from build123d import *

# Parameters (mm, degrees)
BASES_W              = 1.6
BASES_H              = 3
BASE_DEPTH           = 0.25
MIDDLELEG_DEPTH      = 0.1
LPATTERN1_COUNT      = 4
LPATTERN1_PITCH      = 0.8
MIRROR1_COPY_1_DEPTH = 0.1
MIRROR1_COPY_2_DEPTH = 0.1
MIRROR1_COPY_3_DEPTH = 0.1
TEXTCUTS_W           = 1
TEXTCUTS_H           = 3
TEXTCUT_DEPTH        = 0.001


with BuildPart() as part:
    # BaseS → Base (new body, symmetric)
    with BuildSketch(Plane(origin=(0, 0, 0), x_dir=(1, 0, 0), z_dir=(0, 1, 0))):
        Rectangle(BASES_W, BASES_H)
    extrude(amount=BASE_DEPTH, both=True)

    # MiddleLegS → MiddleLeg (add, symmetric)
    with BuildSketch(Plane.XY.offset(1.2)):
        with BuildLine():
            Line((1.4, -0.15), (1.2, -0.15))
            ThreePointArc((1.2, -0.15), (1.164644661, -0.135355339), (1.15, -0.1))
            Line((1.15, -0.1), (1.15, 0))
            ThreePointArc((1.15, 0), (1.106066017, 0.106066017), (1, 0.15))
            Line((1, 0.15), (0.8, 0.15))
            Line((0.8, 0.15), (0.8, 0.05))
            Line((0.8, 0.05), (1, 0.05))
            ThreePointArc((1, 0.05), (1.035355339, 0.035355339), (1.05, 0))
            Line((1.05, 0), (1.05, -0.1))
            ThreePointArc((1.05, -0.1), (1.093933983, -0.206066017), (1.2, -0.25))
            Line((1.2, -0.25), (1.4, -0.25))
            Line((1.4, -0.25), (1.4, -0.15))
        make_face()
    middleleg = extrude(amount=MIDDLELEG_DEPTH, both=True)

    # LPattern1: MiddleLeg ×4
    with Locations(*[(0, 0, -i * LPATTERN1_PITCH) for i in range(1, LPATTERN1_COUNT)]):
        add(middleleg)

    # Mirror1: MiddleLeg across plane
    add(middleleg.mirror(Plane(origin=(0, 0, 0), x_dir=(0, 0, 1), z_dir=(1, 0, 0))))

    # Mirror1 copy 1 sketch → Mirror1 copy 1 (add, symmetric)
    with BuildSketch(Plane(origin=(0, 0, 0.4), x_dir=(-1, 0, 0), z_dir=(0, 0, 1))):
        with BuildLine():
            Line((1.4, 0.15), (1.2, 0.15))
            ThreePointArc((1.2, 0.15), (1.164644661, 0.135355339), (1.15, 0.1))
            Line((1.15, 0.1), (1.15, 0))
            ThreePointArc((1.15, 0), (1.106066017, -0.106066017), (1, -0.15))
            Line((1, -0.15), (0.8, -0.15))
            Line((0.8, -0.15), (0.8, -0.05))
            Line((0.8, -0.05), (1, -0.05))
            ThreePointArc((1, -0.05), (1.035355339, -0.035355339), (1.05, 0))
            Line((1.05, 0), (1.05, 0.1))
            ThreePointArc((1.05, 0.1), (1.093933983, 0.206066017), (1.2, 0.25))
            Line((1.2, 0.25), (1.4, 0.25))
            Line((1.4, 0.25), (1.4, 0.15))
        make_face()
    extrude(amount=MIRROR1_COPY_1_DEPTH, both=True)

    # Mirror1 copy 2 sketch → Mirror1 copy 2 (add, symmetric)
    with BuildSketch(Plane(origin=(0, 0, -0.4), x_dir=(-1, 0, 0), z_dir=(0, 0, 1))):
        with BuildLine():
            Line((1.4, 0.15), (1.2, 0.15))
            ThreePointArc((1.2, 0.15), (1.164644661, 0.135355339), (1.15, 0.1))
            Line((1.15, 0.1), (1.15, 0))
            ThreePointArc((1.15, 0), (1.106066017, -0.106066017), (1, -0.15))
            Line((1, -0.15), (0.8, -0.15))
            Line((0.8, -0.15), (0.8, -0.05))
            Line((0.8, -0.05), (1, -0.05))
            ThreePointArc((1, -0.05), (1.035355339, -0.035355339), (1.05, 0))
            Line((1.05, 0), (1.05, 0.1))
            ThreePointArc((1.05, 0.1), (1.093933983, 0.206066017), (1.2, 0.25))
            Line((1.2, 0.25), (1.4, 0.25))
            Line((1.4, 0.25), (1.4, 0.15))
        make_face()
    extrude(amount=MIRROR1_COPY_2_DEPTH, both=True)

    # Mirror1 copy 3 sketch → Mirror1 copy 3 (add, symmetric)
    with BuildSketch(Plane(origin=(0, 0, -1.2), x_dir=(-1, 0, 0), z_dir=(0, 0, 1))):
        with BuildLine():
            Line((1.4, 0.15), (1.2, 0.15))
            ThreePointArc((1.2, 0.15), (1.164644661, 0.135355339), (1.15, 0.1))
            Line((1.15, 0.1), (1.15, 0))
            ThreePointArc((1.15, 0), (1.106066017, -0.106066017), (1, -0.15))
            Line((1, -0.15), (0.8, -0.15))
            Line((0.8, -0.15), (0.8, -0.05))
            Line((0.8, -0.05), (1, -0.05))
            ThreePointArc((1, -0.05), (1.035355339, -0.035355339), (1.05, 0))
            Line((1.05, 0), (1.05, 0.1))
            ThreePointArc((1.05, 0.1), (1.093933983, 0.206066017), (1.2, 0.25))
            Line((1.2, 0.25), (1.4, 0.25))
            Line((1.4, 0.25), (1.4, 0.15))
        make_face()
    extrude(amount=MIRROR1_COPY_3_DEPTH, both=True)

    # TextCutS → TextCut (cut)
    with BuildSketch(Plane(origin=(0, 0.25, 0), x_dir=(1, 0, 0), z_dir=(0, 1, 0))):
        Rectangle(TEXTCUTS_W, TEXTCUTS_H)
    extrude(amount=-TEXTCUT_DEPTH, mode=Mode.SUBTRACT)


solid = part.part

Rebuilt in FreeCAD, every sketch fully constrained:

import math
import FreeCAD as App
import Part
import Sketcher

V = App.Vector


def add_polygon(sketch, points):
    """Adds a closed chain of lines whose ends are joined by coincident constraints."""
    first, n = sketch.GeometryCount, len(points)
    for a, b in zip(points, points[1:] + points[:1]):
        sketch.addGeometry(Part.LineSegment(App.Vector(*a, 0), App.Vector(*b, 0)), False)
    for i in range(n):
        sketch.addConstraint(Sketcher.Constraint("Coincident", first + i, 2, first + (i + 1) % n, 1))

doc = App.newDocument("Part")
body = doc.addObject("PartDesign::Body", "Body")

sketch1 = doc.addObject("Sketcher::SketchObject", "Sketch")
body.addObject(sketch1)
sketch1.AttachmentSupport = (doc.XZ_Plane, [""])
sketch1.MapMode = "FlatFace"
add_polygon(sketch1, [(-0.8, -1.5), (-0.8, 1.5), (0.8, 1.5), (0.8, -1.5)])
sketch1.addConstraint([
    Sketcher.Constraint("Vertical", 0),
    Sketcher.Constraint("Horizontal", 1),
    Sketcher.Constraint("Vertical", 2),
    Sketcher.Constraint("Horizontal", 3),
    Sketcher.Constraint("Symmetric", 0, 2, 2, 2, -1, 1),
    Sketcher.Constraint("DistanceY", 0, 1, 0, 2, 3.0),
    Sketcher.Constraint("DistanceX", 1, 1, 1, 2, 1.6),
])
pad1 = doc.addObject("PartDesign::Pad", "Pad")
body.addObject(pad1)
pad1.Profile = sketch1
pad1.Length = 0.5
pad1.Midplane = True

sketch2 = doc.addObject("Sketcher::SketchObject", "Sketch001")
body.addObject(sketch2)
sketch2.AttachmentSupport = (doc.XY_Plane, [""])
sketch2.MapMode = "FlatFace"
sketch2.AttachmentOffset = App.Placement(V(0, 0, 1.2), App.Rotation())
sketch2.addGeometry([
    Part.LineSegment(V(1.4, -0.15, 0), V(1.2, -0.15, 0)),
    Part.ArcOfCircle(Part.Circle(V(1.2, -0.1, 0), V(0, 0, 1), 0.05), math.radians(180), math.radians(270)),
    Part.LineSegment(V(1.15, -0.1, 0), V(1.15, 0, 0)),
    Part.ArcOfCircle(Part.Circle(V(1, 0, 0), V(0, 0, 1), 0.15), math.radians(0), math.radians(90)),
    Part.LineSegment(V(1, 0.15, 0), V(0.8, 0.15, 0)),
    Part.LineSegment(V(0.8, 0.15, 0), V(0.8, 0.05, 0)),
    Part.LineSegment(V(0.8, 0.05, 0), V(1, 0.05, 0)),
    Part.ArcOfCircle(Part.Circle(V(1, 0, 0), V(0, 0, 1), 0.05), math.radians(0), math.radians(90)),
    Part.LineSegment(V(1.05, 0, 0), V(1.05, -0.1, 0)),
    Part.ArcOfCircle(Part.Circle(V(1.2, -0.1, 0), V(0, 0, 1), 0.15), math.radians(-180), math.radians(-90)),
    Part.LineSegment(V(1.2, -0.25, 0), V(1.4, -0.25, 0)),
    Part.LineSegment(V(1.4, -0.25, 0), V(1.4, -0.15, 0)),
], False)
sketch2.addConstraint([
    Sketcher.Constraint("Tangent", 0, 2, 1, 2),
    Sketcher.Constraint("Tangent", 1, 1, 2, 1),
    Sketcher.Constraint("Tangent", 2, 2, 3, 1),
    Sketcher.Constraint("Tangent", 3, 2, 4, 1),
    Sketcher.Constraint("Coincident", 4, 2, 5, 1),
    Sketcher.Constraint("Coincident", 5, 2, 6, 1),
    Sketcher.Constraint("Tangent", 6, 2, 7, 2),
    Sketcher.Constraint("Tangent", 7, 1, 8, 1),
    Sketcher.Constraint("Tangent", 8, 2, 9, 1),
    Sketcher.Constraint("Tangent", 9, 2, 10, 1),
    Sketcher.Constraint("Coincident", 10, 2, 11, 1),
    Sketcher.Constraint("Coincident", 11, 2, 0, 1),
    Sketcher.Constraint("Horizontal", 0),
    Sketcher.Constraint("Vertical", 2),
    Sketcher.Constraint("Horizontal", 4),
    Sketcher.Constraint("Vertical", 5),
    Sketcher.Constraint("Horizontal", 6),
    Sketcher.Constraint("Vertical", 8),
    Sketcher.Constraint("Horizontal", 10),
    Sketcher.Constraint("Vertical", 11),
    Sketcher.Constraint("Coincident", 7, 3, 3, 3),
    Sketcher.Constraint("Coincident", 9, 3, 1, 3),
    Sketcher.Constraint("Equal", 1, 7),
    Sketcher.Constraint("PointOnObject", 3, 3, -1),
    Sketcher.Constraint("Equal", 0, 4),
    Sketcher.Constraint("Equal", 2, 5),
    Sketcher.Constraint("Radius", 1, 0.05),
    Sketcher.Constraint("Radius", 3, 0.15),
    Sketcher.Constraint("DistanceX", 0, 2, 0, 1, 0.2),
    Sketcher.Constraint("DistanceX", -1, 1, 3, 3, 1.0),
])
pad2 = doc.addObject("PartDesign::Pad", "Pad001")
body.addObject(pad2)
pad2.Profile = sketch2
pad2.Length = 0.2
pad2.Midplane = True
doc.recompute()

linearpattern = doc.addObject("PartDesign::LinearPattern", "LinearPattern")
body.addObject(linearpattern)
linearpattern.Originals = [pad2]
linearpattern.Direction = (doc.Z_Axis, [""])
linearpattern.Mode = "offset"
linearpattern.Offset = 0.8
linearpattern.Occurrences = 4
linearpattern.Reversed = True
body.Tip = linearpattern
doc.recompute()

mirrored = doc.addObject("PartDesign::Mirrored", "Mirrored")
body.addObject(mirrored)
mirrored.Originals = [pad2]
mirrored.MirrorPlane = (doc.YZ_Plane, [""])
body.Tip = mirrored

sketch3 = doc.addObject("Sketcher::SketchObject", "Sketch002")
body.addObject(sketch3)
sketch3.AttachmentSupport = (doc.XY_Plane, [""])
sketch3.MapMode = "FlatFace"
sketch3.AttachmentOffset = App.Placement(V(0, 0, 0.4), App.Rotation())
sketch3.addGeometry([
    Part.LineSegment(V(-1.2, -0.15, 0), V(-1.4, -0.15, 0)),
    Part.LineSegment(V(-1.4, -0.15, 0), V(-1.4, -0.25, 0)),
    Part.LineSegment(V(-1.4, -0.25, 0), V(-1.2, -0.25, 0)),
    Part.ArcOfCircle(Part.Circle(V(-1.2, -0.1, 0), V(0, 0, 1), 0.15), math.radians(-90), math.radians(0)),
    Part.LineSegment(V(-1.05, -0.1, 0), V(-1.05, 0, 0)),
    Part.ArcOfCircle(Part.Circle(V(-1, 0, 0), V(0, 0, 1), 0.05), math.radians(90), math.radians(180)),
    Part.LineSegment(V(-1, 0.05, 0), V(-0.8, 0.05, 0)),
    Part.LineSegment(V(-0.8, 0.05, 0), V(-0.8, 0.15, 0)),
    Part.LineSegment(V(-0.8, 0.15, 0), V(-1, 0.15, 0)),
    Part.ArcOfCircle(Part.Circle(V(-1, 0, 0), V(0, 0, 1), 0.15), math.radians(90), math.radians(180)),
    Part.LineSegment(V(-1.15, 0, 0), V(-1.15, -0.1, 0)),
    Part.ArcOfCircle(Part.Circle(V(-1.2, -0.1, 0), V(0, 0, 1), 0.05), math.radians(-90), math.radians(0)),
], False)
sketch3.addConstraint([
    Sketcher.Constraint("Coincident", 0, 2, 1, 1),
    Sketcher.Constraint("Coincident", 1, 2, 2, 1),
    Sketcher.Constraint("Tangent", 2, 2, 3, 1),
    Sketcher.Constraint("Tangent", 3, 2, 4, 1),
    Sketcher.Constraint("Tangent", 4, 2, 5, 2),
    Sketcher.Constraint("Tangent", 5, 1, 6, 1),
    Sketcher.Constraint("Coincident", 6, 2, 7, 1),
    Sketcher.Constraint("Coincident", 7, 2, 8, 1),
    Sketcher.Constraint("Tangent", 8, 2, 9, 1),
    Sketcher.Constraint("Tangent", 9, 2, 10, 1),
    Sketcher.Constraint("Tangent", 10, 2, 11, 2),
    Sketcher.Constraint("Tangent", 11, 1, 0, 1),
    Sketcher.Constraint("Horizontal", 0),
    Sketcher.Constraint("Vertical", 1),
    Sketcher.Constraint("Horizontal", 2),
    Sketcher.Constraint("Vertical", 4),
    Sketcher.Constraint("Horizontal", 6),
    Sketcher.Constraint("Vertical", 7),
    Sketcher.Constraint("Horizontal", 8),
    Sketcher.Constraint("Vertical", 10),
    Sketcher.Constraint("Coincident", 9, 3, 5, 3),
    Sketcher.Constraint("Coincident", 11, 3, 3, 3),
    Sketcher.Constraint("Equal", 3, 9),
    Sketcher.Constraint("PointOnObject", 5, 3, -1),
    Sketcher.Constraint("Equal", 2, 6),
    Sketcher.Constraint("Equal", 1, 4),
    Sketcher.Constraint("Radius", 3, 0.15),
    Sketcher.Constraint("Radius", 5, 0.05),
    Sketcher.Constraint("DistanceX", 0, 2, 0, 1, 0.2),
    Sketcher.Constraint("DistanceX", 5, 3, -1, 1, 1.0),
])
pad3 = doc.addObject("PartDesign::Pad", "Pad002")
body.addObject(pad3)
pad3.Profile = sketch3
pad3.Length = 0.2
pad3.Midplane = True

sketch4 = doc.addObject("Sketcher::SketchObject", "Sketch003")
body.addObject(sketch4)
sketch4.AttachmentSupport = (doc.XY_Plane, [""])
sketch4.MapMode = "FlatFace"
sketch4.AttachmentOffset = App.Placement(V(0, 0, -0.4), App.Rotation())
sketch4.addGeometry([
    Part.LineSegment(V(-1.2, -0.15, 0), V(-1.4, -0.15, 0)),
    Part.LineSegment(V(-1.4, -0.15, 0), V(-1.4, -0.25, 0)),
    Part.LineSegment(V(-1.4, -0.25, 0), V(-1.2, -0.25, 0)),
    Part.ArcOfCircle(Part.Circle(V(-1.2, -0.1, 0), V(0, 0, 1), 0.15), math.radians(-90), math.radians(0)),
    Part.LineSegment(V(-1.05, -0.1, 0), V(-1.05, 0, 0)),
    Part.ArcOfCircle(Part.Circle(V(-1, 0, 0), V(0, 0, 1), 0.05), math.radians(90), math.radians(180)),
    Part.LineSegment(V(-1, 0.05, 0), V(-0.8, 0.05, 0)),
    Part.LineSegment(V(-0.8, 0.05, 0), V(-0.8, 0.15, 0)),
    Part.LineSegment(V(-0.8, 0.15, 0), V(-1, 0.15, 0)),
    Part.ArcOfCircle(Part.Circle(V(-1, 0, 0), V(0, 0, 1), 0.15), math.radians(90), math.radians(180)),
    Part.LineSegment(V(-1.15, 0, 0), V(-1.15, -0.1, 0)),
    Part.ArcOfCircle(Part.Circle(V(-1.2, -0.1, 0), V(0, 0, 1), 0.05), math.radians(-90), math.radians(0)),
], False)
sketch4.addConstraint([
    Sketcher.Constraint("Coincident", 0, 2, 1, 1),
    Sketcher.Constraint("Coincident", 1, 2, 2, 1),
    Sketcher.Constraint("Tangent", 2, 2, 3, 1),
    Sketcher.Constraint("Tangent", 3, 2, 4, 1),
    Sketcher.Constraint("Tangent", 4, 2, 5, 2),
    Sketcher.Constraint("Tangent", 5, 1, 6, 1),
    Sketcher.Constraint("Coincident", 6, 2, 7, 1),
    Sketcher.Constraint("Coincident", 7, 2, 8, 1),
    Sketcher.Constraint("Tangent", 8, 2, 9, 1),
    Sketcher.Constraint("Tangent", 9, 2, 10, 1),
    Sketcher.Constraint("Tangent", 10, 2, 11, 2),
    Sketcher.Constraint("Tangent", 11, 1, 0, 1),
    Sketcher.Constraint("Horizontal", 0),
    Sketcher.Constraint("Vertical", 1),
    Sketcher.Constraint("Horizontal", 2),
    Sketcher.Constraint("Vertical", 4),
    Sketcher.Constraint("Horizontal", 6),
    Sketcher.Constraint("Vertical", 7),
    Sketcher.Constraint("Horizontal", 8),
    Sketcher.Constraint("Vertical", 10),
    Sketcher.Constraint("Coincident", 9, 3, 5, 3),
    Sketcher.Constraint("Coincident", 11, 3, 3, 3),
    Sketcher.Constraint("Equal", 3, 9),
    Sketcher.Constraint("PointOnObject", 5, 3, -1),
    Sketcher.Constraint("Equal", 2, 6),
    Sketcher.Constraint("Equal", 1, 4),
    Sketcher.Constraint("Radius", 3, 0.15),
    Sketcher.Constraint("Radius", 5, 0.05),
    Sketcher.Constraint("DistanceX", 0, 2, 0, 1, 0.2),
    Sketcher.Constraint("DistanceX", 5, 3, -1, 1, 1.0),
])
pad4 = doc.addObject("PartDesign::Pad", "Pad003")
body.addObject(pad4)
pad4.Profile = sketch4
pad4.Length = 0.2
pad4.Midplane = True

sketch5 = doc.addObject("Sketcher::SketchObject", "Sketch004")
body.addObject(sketch5)
sketch5.AttachmentSupport = (doc.XY_Plane, [""])
sketch5.MapMode = "FlatFace"
sketch5.AttachmentOffset = App.Placement(V(0, 0, -1.2), App.Rotation())
sketch5.addGeometry([
    Part.LineSegment(V(-1.2, -0.15, 0), V(-1.4, -0.15, 0)),
    Part.LineSegment(V(-1.4, -0.15, 0), V(-1.4, -0.25, 0)),
    Part.LineSegment(V(-1.4, -0.25, 0), V(-1.2, -0.25, 0)),
    Part.ArcOfCircle(Part.Circle(V(-1.2, -0.1, 0), V(0, 0, 1), 0.15), math.radians(-90), math.radians(0)),
    Part.LineSegment(V(-1.05, -0.1, 0), V(-1.05, 0, 0)),
    Part.ArcOfCircle(Part.Circle(V(-1, 0, 0), V(0, 0, 1), 0.05), math.radians(90), math.radians(180)),
    Part.LineSegment(V(-1, 0.05, 0), V(-0.8, 0.05, 0)),
    Part.LineSegment(V(-0.8, 0.05, 0), V(-0.8, 0.15, 0)),
    Part.LineSegment(V(-0.8, 0.15, 0), V(-1, 0.15, 0)),
    Part.ArcOfCircle(Part.Circle(V(-1, 0, 0), V(0, 0, 1), 0.15), math.radians(90), math.radians(180)),
    Part.LineSegment(V(-1.15, 0, 0), V(-1.15, -0.1, 0)),
    Part.ArcOfCircle(Part.Circle(V(-1.2, -0.1, 0), V(0, 0, 1), 0.05), math.radians(-90), math.radians(0)),
], False)
sketch5.addConstraint([
    Sketcher.Constraint("Coincident", 0, 2, 1, 1),
    Sketcher.Constraint("Coincident", 1, 2, 2, 1),
    Sketcher.Constraint("Tangent", 2, 2, 3, 1),
    Sketcher.Constraint("Tangent", 3, 2, 4, 1),
    Sketcher.Constraint("Tangent", 4, 2, 5, 2),
    Sketcher.Constraint("Tangent", 5, 1, 6, 1),
    Sketcher.Constraint("Coincident", 6, 2, 7, 1),
    Sketcher.Constraint("Coincident", 7, 2, 8, 1),
    Sketcher.Constraint("Tangent", 8, 2, 9, 1),
    Sketcher.Constraint("Tangent", 9, 2, 10, 1),
    Sketcher.Constraint("Tangent", 10, 2, 11, 2),
    Sketcher.Constraint("Tangent", 11, 1, 0, 1),
    Sketcher.Constraint("Horizontal", 0),
    Sketcher.Constraint("Vertical", 1),
    Sketcher.Constraint("Horizontal", 2),
    Sketcher.Constraint("Vertical", 4),
    Sketcher.Constraint("Horizontal", 6),
    Sketcher.Constraint("Vertical", 7),
    Sketcher.Constraint("Horizontal", 8),
    Sketcher.Constraint("Vertical", 10),
    Sketcher.Constraint("Coincident", 9, 3, 5, 3),
    Sketcher.Constraint("Coincident", 11, 3, 3, 3),
    Sketcher.Constraint("Equal", 3, 9),
    Sketcher.Constraint("PointOnObject", 5, 3, -1),
    Sketcher.Constraint("Equal", 2, 6),
    Sketcher.Constraint("Equal", 1, 4),
    Sketcher.Constraint("Radius", 3, 0.15),
    Sketcher.Constraint("Radius", 5, 0.05),
    Sketcher.Constraint("DistanceX", 0, 2, 0, 1, 0.2),
    Sketcher.Constraint("DistanceX", 5, 3, -1, 1, 1.0),
])
pad5 = doc.addObject("PartDesign::Pad", "Pad004")
body.addObject(pad5)
pad5.Profile = sketch5
pad5.Length = 0.2
pad5.Midplane = True

sketch6 = doc.addObject("Sketcher::SketchObject", "Sketch005")
body.addObject(sketch6)
sketch6.AttachmentSupport = (doc.XZ_Plane, [""])
sketch6.MapMode = "FlatFace"
sketch6.AttachmentOffset = App.Placement(V(0, 0, -0.25), App.Rotation())
add_polygon(sketch6, [(-0.5, -1.5), (-0.5, 1.5), (0.5, 1.5), (0.5, -1.5)])
sketch6.addConstraint([
    Sketcher.Constraint("Vertical", 0),
    Sketcher.Constraint("Horizontal", 1),
    Sketcher.Constraint("Vertical", 2),
    Sketcher.Constraint("Horizontal", 3),
    Sketcher.Constraint("Symmetric", 0, 2, 2, 2, -1, 1),
    Sketcher.Constraint("DistanceX", 1, 1, 1, 2, 1.0),
    Sketcher.Constraint("DistanceY", 0, 1, 0, 2, 3.0),
])
pocket1 = doc.addObject("PartDesign::Pocket", "Pocket")
body.addObject(pocket1)
pocket1.Profile = sketch6
pocket1.Length = 0.001
pocket1.Reversed = True

doc.recompute()
